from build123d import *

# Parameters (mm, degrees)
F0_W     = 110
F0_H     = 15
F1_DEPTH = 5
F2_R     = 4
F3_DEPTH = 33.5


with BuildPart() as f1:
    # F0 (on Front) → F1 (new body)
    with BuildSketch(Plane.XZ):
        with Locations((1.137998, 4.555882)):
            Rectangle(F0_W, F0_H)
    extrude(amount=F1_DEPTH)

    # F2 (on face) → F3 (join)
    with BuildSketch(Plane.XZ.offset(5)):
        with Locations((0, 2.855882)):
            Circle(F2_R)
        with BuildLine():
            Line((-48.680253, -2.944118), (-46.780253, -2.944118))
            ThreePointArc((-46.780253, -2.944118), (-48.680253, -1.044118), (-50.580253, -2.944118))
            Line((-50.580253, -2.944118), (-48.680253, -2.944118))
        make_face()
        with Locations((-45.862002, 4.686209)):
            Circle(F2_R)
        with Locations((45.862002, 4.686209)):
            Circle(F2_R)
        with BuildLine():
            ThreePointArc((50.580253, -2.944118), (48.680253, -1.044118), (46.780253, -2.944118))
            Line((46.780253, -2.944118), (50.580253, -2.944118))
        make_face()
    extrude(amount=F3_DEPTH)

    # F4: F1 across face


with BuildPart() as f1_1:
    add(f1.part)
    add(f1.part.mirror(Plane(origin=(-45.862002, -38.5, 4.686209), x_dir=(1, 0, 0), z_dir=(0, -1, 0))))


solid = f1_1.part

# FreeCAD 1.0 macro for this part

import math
import FreeCAD as App
import Part
import Sketcher
from FreeCAD import Vector

doc = App.newDocument("Part")
body = doc.addObject("PartDesign::Body", "Body")

sketch1 = doc.addObject("Sketcher::SketchObject", "Sketch")
body.addObject(sketch1)
sketch1.AttachmentSupport = (doc.XZ_Plane, [""])
sketch1.MapMode = "FlatFace"
sketch1.addGeometry(Part.LineSegment(Vector(-54, 12, 0), Vector(-54, -3, 0)), False)
sketch1.addGeometry(Part.LineSegment(Vector(-54, -3, 0), Vector(56, -3, 0)), False)
sketch1.addGeometry(Part.LineSegment(Vector(56, -3, 0), Vector(56, 12, 0)), False)
sketch1.addGeometry(Part.LineSegment(Vector(56, 12, 0), Vector(-54, 12, 0)), False)
sketch1.addConstraint(Sketcher.Constraint("Coincident", 0, 2, 1, 1))
sketch1.addConstraint(Sketcher.Constraint("Coincident", 1, 2, 2, 1))
sketch1.addConstraint(Sketcher.Constraint("Coincident", 2, 2, 3, 1))
sketch1.addConstraint(Sketcher.Constraint("Coincident", 3, 2, 0, 1))
sketch1.addConstraint(Sketcher.Constraint("Vertical", 0))
sketch1.addConstraint(Sketcher.Constraint("Horizontal", 1))
sketch1.addConstraint(Sketcher.Constraint("Vertical", 2))
sketch1.addConstraint(Sketcher.Constraint("Horizontal", 3))
sketch1.addConstraint(Sketcher.Constraint("DistanceX", 1, 1, 1, 2, 110.0))
sketch1.addConstraint(Sketcher.Constraint("DistanceY", 0, 2, 0, 1, 15.0))
sketch1.addConstraint(Sketcher.Constraint("DistanceX", 0, 2, -1, 1, 53.862002))
sketch1.addConstraint(Sketcher.Constraint("DistanceY", 0, 2, -1, 1, 2.944118))
pad1 = doc.addObject("PartDesign::Pad", "Pad")
body.addObject(pad1)
pad1.Profile = sketch1
pad1.Length = 5

sketch2 = doc.addObject("Sketcher::SketchObject", "Sketch001")
body.addObject(sketch2)
sketch2.AttachmentSupport = (doc.XZ_Plane, [""])
sketch2.MapMode = "FlatFace"
sketch2.AttachmentOffset = App.Placement(Vector(0, 0, 5), App.Rotation())
sketch2.addGeometry(Part.Circle(Vector(0, 2.9, 0), Vector(0, 0, 1), 4), False)
sketch2.addGeometry(Part.ArcOfCircle(Part.Circle(Vector(-48.7, -2.9, 0), Vector(0, 0, 1), 1.9), math.radians(0), math.radians(180)), False)
sketch2.addGeometry(Part.LineSegment(Vector(-50.6, -2.9, 0), Vector(-46.8, -2.9, 0)), False)
sketch2.addGeometry(Part.Circle(Vector(-45.9, 4.7, 0), Vector(0, 0, 1), 4), False)
sketch2.addGeometry(Part.Circle(Vector(45.9, 4.7, 0), Vector(0, 0, 1), 4), False)
sketch2.addGeometry(Part.ArcOfCircle(Part.Circle(Vector(48.7, -2.9, 0), Vector(0, 0, 1), 1.9), math.radians(0), math.radians(180)), False)
sketch2.addGeometry(Part.LineSegment(Vector(46.8, -2.9, 0), Vector(50.6, -2.9, 0)), False)
sketch2.addConstraint(Sketcher.Constraint("Coincident", 1, 1, 2, 2))
sketch2.addConstraint(Sketcher.Constraint("Coincident", 2, 1, 1, 2))
sketch2.addConstraint(Sketcher.Constraint("Coincident", 5, 1, 6, 2))
sketch2.addConstraint(Sketcher.Constraint("Coincident", 6, 1, 5, 2))
sketch2.addConstraint(Sketcher.Constraint("Horizontal", 2))
sketch2.addConstraint(Sketcher.Constraint("Horizontal", 6))
sketch2.addConstraint(Sketcher.Constraint("Equal", 0, 3))
sketch2.addConstraint(Sketcher.Constraint("Equal", 3, 4))
sketch2.addConstraint(Sketcher.Constraint("Equal", 1, 5))
sketch2.addConstraint(Sketcher.Constraint("Symmetric", 3, 3, 4, 3, -2))
sketch2.addConstraint(Sketcher.Constraint("Symmetric", 1, 3, 5, 3, -2))
sketch2.addConstraint(Sketcher.Constraint("PointOnObject", 0, 3, -2))
sketch2.addConstraint(Sketcher.Constraint("Horizontal", 5, 3, 1, 1))
sketch2.addConstraint(Sketcher.Constraint("Horizontal", 2, 1, 5, 1))
sketch2.addConstraint(Sketcher.Constraint("Diameter", 0, 8.0))
sketch2.addConstraint(Sketcher.Constraint("Radius", 1, 1.9))
sketch2.addConstraint(Sketcher.Constraint("DistanceY", 1, 3, 0, 3, 5.8))
sketch2.addConstraint(Sketcher.Constraint("DistanceX", 3, 3, -1, 1, 45.862002))
sketch2.addConstraint(Sketcher.Constraint("DistanceY", -1, 1, 0, 3, 2.855882))
sketch2.addConstraint(Sketcher.Constraint("DistanceY", -1, 1, 3, 3, 4.686209))
sketch2.addConstraint(Sketcher.Constraint("DistanceX", 1, 3, 3, 3, 2.818251))
pad2 = doc.addObject("PartDesign::Pad", "Pad001")
body.addObject(pad2)
pad2.Profile = sketch2
pad2.Length = 33.5
body2 = doc.addObject("PartDesign::Body", "Body001")
doc.recompute()

body2.BaseFeature = body
doc.recompute()

mirroring = doc.addObject("Part::Mirroring", "Mirroring")
mirroring.Source = body
mirroring.Base = Vector(-45.862002, -38.5, 4.686209)
mirroring.Normal = Vector(0, -1, 0)
body3 = doc.addObject("PartDesign::Body", "Body002")
body3.BaseFeature = mirroring
boolean = doc.addObject("PartDesign::Boolean", "Boolean")
body2.addObject(boolean)
boolean.Type = "Fuse"
boolean.addObjects([body3])
doc.recompute()
mirroring.Visibility = False

doc.recompute()
